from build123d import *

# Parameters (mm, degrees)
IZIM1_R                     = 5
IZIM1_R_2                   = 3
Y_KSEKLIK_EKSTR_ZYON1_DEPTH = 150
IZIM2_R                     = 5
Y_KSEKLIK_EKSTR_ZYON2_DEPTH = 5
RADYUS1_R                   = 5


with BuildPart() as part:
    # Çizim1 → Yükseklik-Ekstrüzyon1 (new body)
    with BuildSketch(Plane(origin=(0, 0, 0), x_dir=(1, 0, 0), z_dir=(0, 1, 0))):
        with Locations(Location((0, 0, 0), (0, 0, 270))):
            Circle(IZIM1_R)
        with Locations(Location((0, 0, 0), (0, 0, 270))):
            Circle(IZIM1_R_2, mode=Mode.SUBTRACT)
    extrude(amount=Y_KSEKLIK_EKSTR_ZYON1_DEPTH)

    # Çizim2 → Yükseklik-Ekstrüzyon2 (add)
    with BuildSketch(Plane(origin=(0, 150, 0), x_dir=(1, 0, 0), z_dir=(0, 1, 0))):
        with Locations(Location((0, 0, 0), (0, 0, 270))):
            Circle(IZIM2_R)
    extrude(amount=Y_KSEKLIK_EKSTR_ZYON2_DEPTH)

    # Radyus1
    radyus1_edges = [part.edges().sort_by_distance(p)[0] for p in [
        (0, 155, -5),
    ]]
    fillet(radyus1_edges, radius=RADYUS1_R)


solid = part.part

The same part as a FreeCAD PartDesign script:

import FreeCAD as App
import Part
import Sketcher

V = App.Vector
Q = App.Units.Quantity


def edges_at(feature, points):
    """Names of the edges that pass closest to the given points."""
    edges = feature.Shape.Edges
    near = lambda p: min(range(len(edges)), key=lambda i: edges[i].distToShape(Part.Vertex(*p))[0])
    return sorted({f"Edge{near(p) + 1}" for p in points})

doc = App.newDocument("Part")
body = doc.addObject("PartDesign::Body", "Body")

sketch1 = body.newObject("Sketcher::SketchObject", "Sketch")
sketch1.AttachmentSupport = (doc.getObject("XZ_Plane"), [""])
sketch1.MapMode = "FlatFace"
sketch1.addGeometry(Part.Circle(V(0, 0, 0), V(0, 0, 1), 5), False)
sketch1.addGeometry(Part.Circle(V(0, 0, 0), V(0, 0, 1), 3), False)
sketch1.addConstraint(Sketcher.Constraint("Coincident", 0, 3, -1, 1))
sketch1.addConstraint(Sketcher.Constraint("Coincident", 1, 3, -1, 1))
sketch1.addConstraint(Sketcher.Constraint("Diameter", 0, Q("10 mm")))
sketch1.addConstraint(Sketcher.Constraint("Diameter", 1, Q("6 mm")))
pad1 = body.newObject("PartDesign::Pad", "Pad")
pad1.Profile = sketch1
pad1.Length = 150
pad1.Reversed = True

sketch2 = body.newObject("Sketcher::SketchObject", "Sketch001")
sketch2.AttachmentSupport = (doc.getObject("XZ_Plane"), [""])
sketch2.MapMode = "FlatFace"
sketch2.AttachmentOffset = App.Placement(V(0, 0, -150), App.Rotation())
sketch2.addGeometry(Part.Circle(V(0, 0, 0), V(0, 0, 1), 5), False)
sketch2.addConstraint(Sketcher.Constraint("Coincident", 0, 3, -1, 1))
sketch2.addConstraint(Sketcher.Constraint("Diameter", 0, Q("10 mm")))
pad2 = body.newObject("PartDesign::Pad", "Pad001")
pad2.Profile = sketch2
pad2.Length = 5
pad2.Reversed = True
doc.recompute()

fillet = body.newObject("PartDesign::Fillet", "Fillet")
fillet.Base = (pad2, edges_at(pad2, [(0, 155, -5)]))
fillet.Radius = 5

doc.recompute()
